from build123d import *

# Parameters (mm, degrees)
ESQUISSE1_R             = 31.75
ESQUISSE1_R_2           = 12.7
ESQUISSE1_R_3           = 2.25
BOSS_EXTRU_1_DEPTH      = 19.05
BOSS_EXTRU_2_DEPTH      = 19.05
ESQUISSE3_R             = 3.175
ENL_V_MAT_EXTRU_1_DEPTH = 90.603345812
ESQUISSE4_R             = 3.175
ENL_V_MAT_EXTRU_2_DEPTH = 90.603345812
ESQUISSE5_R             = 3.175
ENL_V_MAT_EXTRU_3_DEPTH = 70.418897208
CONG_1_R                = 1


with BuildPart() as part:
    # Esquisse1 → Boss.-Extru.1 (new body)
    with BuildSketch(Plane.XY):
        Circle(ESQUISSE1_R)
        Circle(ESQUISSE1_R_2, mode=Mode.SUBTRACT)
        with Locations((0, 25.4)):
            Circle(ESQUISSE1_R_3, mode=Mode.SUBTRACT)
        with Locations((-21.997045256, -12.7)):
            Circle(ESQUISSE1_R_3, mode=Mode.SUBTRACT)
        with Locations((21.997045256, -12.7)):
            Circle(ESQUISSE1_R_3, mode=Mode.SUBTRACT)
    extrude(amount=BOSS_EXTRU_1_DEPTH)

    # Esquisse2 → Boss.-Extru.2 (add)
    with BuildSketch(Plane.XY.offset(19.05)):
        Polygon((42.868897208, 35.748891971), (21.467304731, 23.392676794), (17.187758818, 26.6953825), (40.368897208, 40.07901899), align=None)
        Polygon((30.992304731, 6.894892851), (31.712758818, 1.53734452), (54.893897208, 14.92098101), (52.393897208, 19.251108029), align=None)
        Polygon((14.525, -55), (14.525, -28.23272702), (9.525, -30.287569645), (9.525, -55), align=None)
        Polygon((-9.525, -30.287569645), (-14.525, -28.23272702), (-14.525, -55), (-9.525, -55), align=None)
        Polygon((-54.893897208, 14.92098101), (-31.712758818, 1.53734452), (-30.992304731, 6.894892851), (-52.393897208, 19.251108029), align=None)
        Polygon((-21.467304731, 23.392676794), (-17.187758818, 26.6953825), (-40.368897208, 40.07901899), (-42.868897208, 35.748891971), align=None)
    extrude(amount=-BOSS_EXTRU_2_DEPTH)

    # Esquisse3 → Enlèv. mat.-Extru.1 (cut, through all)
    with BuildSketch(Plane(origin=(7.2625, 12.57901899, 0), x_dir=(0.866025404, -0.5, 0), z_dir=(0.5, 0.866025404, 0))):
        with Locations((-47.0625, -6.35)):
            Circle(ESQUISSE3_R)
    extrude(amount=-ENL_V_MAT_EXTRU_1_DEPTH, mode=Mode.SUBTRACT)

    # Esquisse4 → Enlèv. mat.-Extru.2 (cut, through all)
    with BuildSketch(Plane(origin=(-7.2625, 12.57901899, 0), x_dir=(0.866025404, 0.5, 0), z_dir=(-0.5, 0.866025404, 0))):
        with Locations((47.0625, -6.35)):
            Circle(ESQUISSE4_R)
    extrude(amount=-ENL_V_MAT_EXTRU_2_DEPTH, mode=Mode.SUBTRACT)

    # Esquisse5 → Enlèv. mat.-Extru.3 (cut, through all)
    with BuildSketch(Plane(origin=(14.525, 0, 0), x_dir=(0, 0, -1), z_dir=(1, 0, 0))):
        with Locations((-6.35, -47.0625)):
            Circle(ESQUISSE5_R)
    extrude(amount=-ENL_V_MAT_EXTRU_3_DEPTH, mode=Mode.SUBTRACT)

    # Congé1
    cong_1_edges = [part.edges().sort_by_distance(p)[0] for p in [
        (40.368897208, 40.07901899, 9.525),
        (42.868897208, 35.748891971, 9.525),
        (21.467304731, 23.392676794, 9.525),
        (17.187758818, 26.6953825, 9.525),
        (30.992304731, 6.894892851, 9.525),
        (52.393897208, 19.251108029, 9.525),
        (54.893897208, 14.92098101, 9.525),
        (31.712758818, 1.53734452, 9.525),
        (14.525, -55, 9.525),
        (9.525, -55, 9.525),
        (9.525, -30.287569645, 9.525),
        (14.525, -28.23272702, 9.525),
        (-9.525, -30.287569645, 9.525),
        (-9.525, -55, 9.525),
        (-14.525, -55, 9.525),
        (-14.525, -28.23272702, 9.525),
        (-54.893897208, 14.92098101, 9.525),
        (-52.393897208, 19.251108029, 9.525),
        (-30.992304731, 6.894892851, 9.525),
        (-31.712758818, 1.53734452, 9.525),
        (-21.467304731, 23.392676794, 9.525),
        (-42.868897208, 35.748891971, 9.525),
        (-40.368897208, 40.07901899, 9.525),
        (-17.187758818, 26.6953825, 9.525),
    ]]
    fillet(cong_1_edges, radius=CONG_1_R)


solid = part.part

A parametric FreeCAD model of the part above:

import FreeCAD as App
import Part
import Sketcher

V = App.Vector
Q = App.Units.Quantity


def edges_at(feature, points):
    """Names of the edges that pass closest to the given points."""
    edges = feature.Shape.Edges
    near = lambda p: min(range(len(edges)), key=lambda i: edges[i].distToShape(Part.Vertex(*p))[0])
    return sorted({f"Edge{near(p) + 1}" for p in points})

doc = App.newDocument("Part")
body = doc.addObject("PartDesign::Body", "Body")

sketch1 = body.newObject("Sketcher::SketchObject", "Sketch")
sketch1.AttachmentSupport = (doc.getObject("XY_Plane"), [""])
sketch1.MapMode = "FlatFace"
sketch1.addGeometry(Part.Circle(V(0, 0, 0), V(0, 0, 1), 31.75), False)
sketch1.addGeometry(Part.Circle(V(-21.997045, -12.7, 0), V(0, 0, 1), 2.25), False)
sketch1.addGeometry(Part.Circle(V(21.997045, -12.7, 0), V(0, 0, 1), 2.25), False)
sketch1.addGeometry(Part.Circle(V(0, 0, 0), V(0, 0, 1), 12.7), False)
sketch1.addGeometry(Part.Circle(V(0, 25.4, 0), V(0, 0, 1), 2.25), False)
sketch1.addConstraint(Sketcher.Constraint("Coincident", 0, 3, -1, 1))
sketch1.addConstraint(Sketcher.Constraint("Coincident", 3, 3, -1, 1))
sketch1.addConstraint(Sketcher.Constraint("Equal", 1, 2))
sketch1.addConstraint(Sketcher.Constraint("Equal", 2, 4))
sketch1.addConstraint(Sketcher.Constraint("Symmetric", 1, 3, 2, 3, -2))
sketch1.addConstraint(Sketcher.Constraint("PointOnObject", 4, 3, -2))
sketch1.addConstraint(Sketcher.Constraint("Diameter", 3, Q("1 in")))
sketch1.addConstraint(Sketcher.Constraint("Diameter", 0, Q("2.5 in")))
sketch1.addConstraint(Sketcher.Constraint("DistanceY", -1, 1, 4, 3, Q("1 in")))
sketch1.addConstraint(Sketcher.Constraint("DistanceY", 1, 3, -1, 1, Q("0.5 in")))
sketch1.addConstraint(Sketcher.Constraint("Diameter", 1, Q("4.5 mm")))
sketch1.addConstraint(Sketcher.Constraint("DistanceX", 1, 3, 2, 3, Q("43.994091 mm")))
pad1 = body.newObject("PartDesign::Pad", "Pad")
pad1.Profile = sketch1
pad1.Length = Q("0.75 in")

sketch2 = body.newObject("Sketcher::SketchObject", "Sketch001")
sketch2.AttachmentSupport = (doc.getObject("XY_Plane"), [""])
sketch2.MapMode = "FlatFace"
sketch2.AttachmentOffset = App.Placement(V(0, 0, 0.75 * 25.4), App.Rotation())
sketch2.addGeometry(Part.LineSegment(V(21.467305, 23.392677, 0), V(42.868897, 35.748892, 0)), False)
sketch2.addGeometry(Part.LineSegment(V(42.868897, 35.748892, 0), V(40.368897, 40.079019, 0)), False)
sketch2.addGeometry(Part.LineSegment(V(40.368897, 40.079019, 0), V(17.187759, 26.695383, 0)), False)
sketch2.addGeometry(Part.LineSegment(V(17.187759, 26.695383, 0), V(21.467305, 23.392677, 0)), False)
sketch2.addGeometry(Part.LineSegment(V(30.992305, 6.894893, 0), V(31.712759, 1.537345, 0)), False)
sketch2.addGeometry(Part.LineSegment(V(31.712759, 1.537345, 0), V(54.893897, 14.920981, 0)), False)
sketch2.addGeometry(Part.LineSegment(V(54.893897, 14.920981, 0), V(52.393897, 19.251108, 0)), False)
sketch2.addGeometry(Part.LineSegment(V(52.393897, 19.251108, 0), V(30.992305, 6.894893, 0)), False)
sketch2.addGeometry(Part.LineSegment(V(14.525, -55, 0), V(14.525, -28.232727, 0)), False)
sketch2.addGeometry(Part.LineSegment(V(14.525, -28.232727, 0), V(9.525, -30.28757, 0)), False)
sketch2.addGeometry(Part.LineSegment(V(9.525, -30.28757, 0), V(9.525, -55, 0)), False)
sketch2.addGeometry(Part.LineSegment(V(9.525, -55, 0), V(14.525, -55, 0)), False)
sketch2.addGeometry(Part.LineSegment(V(-9.525, -30.28757, 0), V(-14.525, -28.232727, 0)), False)
sketch2.addGeometry(Part.LineSegment(V(-14.525, -28.232727, 0), V(-14.525, -55, 0)), False)
sketch2.addGeometry(Part.LineSegment(V(-14.525, -55, 0), V(-9.525, -55, 0)), False)
sketch2.addGeometry(Part.LineSegment(V(-9.525, -55, 0), V(-9.525, -30.28757, 0)), False)
sketch2.addGeometry(Part.LineSegment(V(-54.893897, 14.920981, 0), V(-31.712759, 1.537345, 0)), False)
sketch2.addGeometry(Part.LineSegment(V(-31.712759, 1.537345, 0), V(-30.992305, 6.894893, 0)), False)
sketch2.addGeometry(Part.LineSegment(V(-30.992305, 6.894893, 0), V(-52.393897, 19.251108, 0)), False)
sketch2.addGeometry(Part.LineSegment(V(-52.393897, 19.251108, 0), V(-54.893897, 14.920981, 0)), False)
sketch2.addGeometry(Part.LineSegment(V(-21.467305, 23.392677, 0), V(-17.187759, 26.695383, 0)), False)
sketch2.addGeometry(Part.LineSegment(V(-17.187759, 26.695383, 0), V(-40.368897, 40.079019, 0)), False)
sketch2.addGeometry(Part.LineSegment(V(-40.368897, 40.079019, 0), V(-42.868897, 35.748892, 0)), False)
sketch2.addGeometry(Part.LineSegment(V(-42.868897, 35.748892, 0), V(-21.467305, 23.392677, 0)), False)
sketch2.addConstraint(Sketcher.Constraint("Coincident", 0, 2, 1, 1))
sketch2.addConstraint(Sketcher.Constraint("Coincident", 1, 2, 2, 1))
sketch2.addConstraint(Sketcher.Constraint("Coincident", 2, 2, 3, 1))
sketch2.addConstraint(Sketcher.Constraint("Coincident", 3, 2, 0, 1))
sketch2.addConstraint(Sketcher.Constraint("Coincident", 4, 2, 5, 1))
sketch2.addConstraint(Sketcher.Constraint("Coincident", 5, 2, 6, 1))
sketch2.addConstraint(Sketcher.Constraint("Coincident", 6, 2, 7, 1))
sketch2.addConstraint(Sketcher.Constraint("Coincident", 7, 2, 4, 1))
sketch2.addConstraint(Sketcher.Constraint("Coincident", 8, 2, 9, 1))
sketch2.addConstraint(Sketcher.Constraint("Coincident", 9, 2, 10, 1))
sketch2.addConstraint(Sketcher.Constraint("Coincident", 10, 2, 11, 1))
sketch2.addConstraint(Sketcher.Constraint("Coincident", 11, 2, 8, 1))
sketch2.addConstraint(Sketcher.Constraint("Coincident", 12, 2, 13, 1))
sketch2.addConstraint(Sketcher.Constraint("Coincident", 13, 2, 14, 1))
sketch2.addConstraint(Sketcher.Constraint("Coincident", 14, 2, 15, 1))
sketch2.addConstraint(Sketcher.Constraint("Coincident", 15, 2, 12, 1))
sketch2.addConstraint(Sketcher.Constraint("Coincident", 16, 2, 17, 1))
sketch2.addConstraint(Sketcher.Constraint("Coincident", 17, 2, 18, 1))
sketch2.addConstraint(Sketcher.Constraint("Coincident", 18, 2, 19, 1))
sketch2.addConstraint(Sketcher.Constraint("Coincident", 19, 2, 16, 1))
sketch2.addConstraint(Sketcher.Constraint("Coincident", 20, 2, 21, 1))
sketch2.addConstraint(Sketcher.Constraint("Coincident", 21, 2, 22, 1))
sketch2.addConstraint(Sketcher.Constraint("Coincident", 22, 2, 23, 1))
sketch2.addConstraint(Sketcher.Constraint("Coincident", 23, 2, 20, 1))
sketch2.addConstraint(Sketcher.Constraint("Vertical", 8))
sketch2.addConstraint(Sketcher.Constraint("Vertical", 10))
sketch2.addConstraint(Sketcher.Constraint("Horizontal", 11))
sketch2.addConstraint(Sketcher.Constraint("Vertical", 13))
sketch2.addConstraint(Sketcher.Constraint("Horizontal", 14))
sketch2.addConstraint(Sketcher.Constraint("Vertical", 15))
sketch2.addConstraint(Sketcher.Constraint("Symmetric", 8, 2, 12, 2, -2))
sketch2.addConstraint(Sketcher.Constraint("Symmetric", 10, 2, 14, 2, -2))
sketch2.addConstraint(Sketcher.Constraint("Symmetric", 4, 2, 16, 2, -2))
sketch2.addConstraint(Sketcher.Constraint("Symmetric", 7, 2, 17, 2, -2))
sketch2.addConstraint(Sketcher.Constraint("Symmetric", 6, 2, 18, 2, -2))
sketch2.addConstraint(Sketcher.Constraint("Symmetric", 5, 2, 19, 2, -2))
sketch2.addConstraint(Sketcher.Constraint("Symmetric", 2, 2, 20, 2, -2))
sketch2.addConstraint(Sketcher.Constraint("Symmetric", 1, 2, 21, 2, -2))
sketch2.addConstraint(Sketcher.Constraint("Symmetric", 0, 2, 22, 2, -2))
sketch2.addConstraint(Sketcher.Constraint("Symmetric", 3, 2, 23, 2, -2))
sketch2.addConstraint(Sketcher.Constraint("Perpendicular", 0, 1))
sketch2.addConstraint(Sketcher.Constraint("Perpendicular", 1, 2))
sketch2.addConstraint(Sketcher.Constraint("Parallel", 2, 5))
sketch2.addConstraint(Sketcher.Constraint("Perpendicular", 5, 6))
sketch2.addConstraint(Sketcher.Constraint("Perpendicular", 6, 7))
sketch2.addConstraint(Sketcher.Constraint("Horizontal", 9, 2, 15, 2))
sketch2.addConstraint(Sketcher.Constraint("Equal", 3, 4))
sketch2.addConstraint(Sketcher.Constraint("Equal", 2, 5))
sketch2.addConstraint(Sketcher.Constraint("Equal", 1, 6))
sketch2.addConstraint(Sketcher.Constraint("Equal", 4, 9))
sketch2.addConstraint(Sketcher.Constraint("Angle", 0, Q("30 deg")))
sketch2.addConstraint(Sketcher.Constraint("DistanceX", 14, 2, 10, 2, Q("0.75 in")))
sketch2.addConstraint(Sketcher.Constraint("DistanceX", 0, 2, 6, 2, Q("0.375 in")))
sketch2.addConstraint(Sketcher.Constraint("DistanceX", 11, 1, 11, 2, Q("5 mm")))
sketch2.addConstraint(Sketcher.Constraint("Distance", 1, Q("5 mm")))
sketch2.addConstraint(Sketcher.Constraint("DistanceY", 10, 2, 10, 1, Q("24.71243 mm")))
sketch2.addConstraint(Sketcher.Constraint("DistanceY", 10, 2, -1, 1, Q("55 mm")))
sketch2.addConstraint(Sketcher.Constraint("DistanceY", 5, 2, 2, 2, Q("11.774401 mm")))
sketch2.addConstraint(Sketcher.Constraint("DistanceY", 17, 2, 22, 2, Q("28.853999 mm")))
sketch2.addConstraint(Sketcher.Constraint("Distance", 0, Q("24.71243 mm")))
sketch2.addConstraint(Sketcher.Constraint("DistanceY", -1, 1, 0, 2, Q("35.748892 mm")))
sketch2.addConstraint(Sketcher.Constraint("DistanceX", -1, 1, 2, 2, Q("17.187759 mm")))
pad2 = body.newObject("PartDesign::Pad", "Pad001")
pad2.Profile = sketch2
pad2.Length = Q("0.75 in")
pad2.Reversed = True

sketch3 = body.newObject("Sketcher::SketchObject", "Sketch002")
sketch3.Placement = App.Placement(V(7.2625, 12.579019, 0), App.Rotation(V(0.866025404, -0.5, 0), V(0, 0, -1), V(0.5, 0.866025404, 0), "ZXY"))
sketch3.addGeometry(Part.Circle(V(-47.0625, -6.35, 0), V(0, 0, 1), 3.175), False)
sketch3.addConstraint(Sketcher.Constraint("Diameter", 0, Q("0.25 in")))
sketch3.addConstraint(Sketcher.Constraint("DistanceY", 0, 3, -1, 1, Q("0.25 in")))
sketch3.addConstraint(Sketcher.Constraint("DistanceX", 0, 3, -1, 1, Q("47.0625 mm")))
pocket1 = body.newObject("PartDesign::Pocket", "Pocket")
pocket1.Profile = sketch3
pocket1.Type = "ThroughAll"

sketch4 = body.newObject("Sketcher::SketchObject", "Sketch003")
sketch4.Placement = App.Placement(V(-7.2625, 12.579019, 0), App.Rotation(V(0.866025404, 0.5, 0), V(0, 0, -1), V(-0.5, 0.866025404, 0), "ZXY"))
sketch4.addGeometry(Part.Circle(V(47.0625, -6.35, 0), V(0, 0, 1), 3.175), False)
sketch4.addConstraint(Sketcher.Constraint("Diameter", 0, Q("0.25 in")))
sketch4.addConstraint(Sketcher.Constraint("DistanceY", 0, 3, -1, 1, Q("0.25 in")))
sketch4.addConstraint(Sketcher.Constraint("DistanceX", -1, 1, 0, 3, Q("47.0625 mm")))
pocket2 = body.newObject("PartDesign::Pocket", "Pocket001")
pocket2.Profile = sketch4
pocket2.Type = "ThroughAll"

sketch5 = body.newObject("Sketcher::SketchObject", "Sketch004")
sketch5.AttachmentSupport = (doc.getObject("YZ_Plane"), [""])
sketch5.MapMode = "FlatFace"
sketch5.AttachmentOffset = App.Placement(V(0, 0, 14.525), App.Rotation())
sketch5.addGeometry(Part.Circle(V(-47.0625, 6.35, 0), V(0, 0, 1), 3.175), False)
sketch5.addConstraint(Sketcher.Constraint("Diameter", 0, Q("0.25 in")))
sketch5.addConstraint(Sketcher.Constraint("DistanceY", -1, 1, 0, 3, Q("0.25 in")))
sketch5.addConstraint(Sketcher.Constraint("DistanceX", 0, 3, -1, 1, Q("47.0625 mm")))
pocket3 = body.newObject("PartDesign::Pocket", "Pocket002")
pocket3.Profile = sketch5
pocket3.Type = "ThroughAll"
doc.recompute()

fillet = body.newObject("PartDesign::Fillet", "Fillet")
fillet.Base = (pocket3, edges_at(pocket3, [
    (40.369, 40.079, 9.525),
    (42.869, 35.749, 9.525),
    (21.467, 23.393, 9.525),
    (17.188, 26.695, 9.525),
    (30.992, 6.895, 9.525),
    (52.394, 19.251, 9.525),
    (54.894, 14.921, 9.525),
    (31.713, 1.537, 9.525),
    (14.525, -55, 9.525),
    (9.525, -55, 9.525),
    (9.525, -30.288, 9.525),
    (14.525, -28.233, 9.525),
    (-9.525, -30.288, 9.525),
    (-9.525, -55, 9.525),
    (-14.525, -55, 9.525),
    (-14.525, -28.233, 9.525),
    (-54.894, 14.921, 9.525),
    (-52.394, 19.251, 9.525),
    (-30.992, 6.895, 9.525),
    (-31.713, 1.537, 9.525),
    (-21.467, 23.393, 9.525),
    (-42.869, 35.749, 9.525),
    (-40.369, 40.079, 9.525),
    (-17.188, 26.695, 9.525),
]))
fillet.Radius = 1

doc.recompute()
